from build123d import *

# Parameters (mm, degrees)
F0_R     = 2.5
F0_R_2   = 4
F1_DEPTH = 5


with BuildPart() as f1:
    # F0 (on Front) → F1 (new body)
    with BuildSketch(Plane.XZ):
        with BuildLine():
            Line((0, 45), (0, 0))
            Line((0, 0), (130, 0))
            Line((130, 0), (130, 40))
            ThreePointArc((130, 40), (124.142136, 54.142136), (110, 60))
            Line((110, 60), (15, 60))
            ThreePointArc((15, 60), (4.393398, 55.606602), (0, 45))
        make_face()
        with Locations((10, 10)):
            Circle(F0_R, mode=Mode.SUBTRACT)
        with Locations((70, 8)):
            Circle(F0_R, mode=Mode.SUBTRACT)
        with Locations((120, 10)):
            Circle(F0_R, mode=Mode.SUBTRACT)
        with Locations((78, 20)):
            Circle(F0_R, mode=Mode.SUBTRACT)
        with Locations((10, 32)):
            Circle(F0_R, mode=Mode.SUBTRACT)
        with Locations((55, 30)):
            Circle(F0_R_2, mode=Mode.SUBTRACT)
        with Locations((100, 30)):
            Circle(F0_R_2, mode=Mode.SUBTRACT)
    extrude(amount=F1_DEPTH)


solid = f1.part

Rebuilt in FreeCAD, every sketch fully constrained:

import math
import FreeCAD as App
import Part
import Sketcher
Q = App.Units.Quantity

doc = App.newDocument("Part")
body = doc.addObject("PartDesign::Body", "Body")

# Sketch on XZ plane
sketch1 = doc.addObject("Sketcher::SketchObject", "Sketch")
body.addObject(sketch1)
sketch1.AttachmentSupport = (doc.XZ_Plane, [""])
sketch1.MapMode = "FlatFace"
sketch1.addGeometry([
    Part.LineSegment(App.Vector(0, 45, 0), App.Vector(0, 0, 0)),  # 0
    Part.LineSegment(App.Vector(0, 0, 0), App.Vector(130, 0, 0)),  # 1
    Part.LineSegment(App.Vector(130, 0, 0), App.Vector(130, 40, 0)),  # 2
    Part.ArcOfCircle(Part.Circle(App.Vector(110, 40, 0), App.Vector(0, 0, 1), 20), math.radians(0), math.radians(90)),  # 3
    Part.LineSegment(App.Vector(110, 60, 0), App.Vector(15, 60, 0)),  # 4
    Part.ArcOfCircle(Part.Circle(App.Vector(15, 45, 0), App.Vector(0, 0, 1), 15), math.radians(90), math.radians(180)),  # 5
    Part.Circle(App.Vector(10, 10, 0), App.Vector(0, 0, 1), 2.5),  # 6
    Part.Circle(App.Vector(70, 8, 0), App.Vector(0, 0, 1), 2.5),  # 7
    Part.Circle(App.Vector(120, 10, 0), App.Vector(0, 0, 1), 2.5),  # 8
    Part.Circle(App.Vector(10, 32, 0), App.Vector(0, 0, 1), 2.5),  # 9
    Part.Circle(App.Vector(55, 30, 0), App.Vector(0, 0, 1), 4),  # 10
    Part.Circle(App.Vector(78, 20, 0), App.Vector(0, 0, 1), 2.5),  # 11
    Part.Circle(App.Vector(100, 30, 0), App.Vector(0, 0, 1), 4),  # 12
], False)
sketch1.addConstraint([
    Sketcher.Constraint("Coincident", 0, 2, 1, 1),
    Sketcher.Constraint("Coincident", 1, 2, 2, 1),
    Sketcher.Constraint("Tangent", 2, 2, 3, 1),
    Sketcher.Constraint("Tangent", 3, 2, 4, 1),
    Sketcher.Constraint("Tangent", 4, 2, 5, 1),
    Sketcher.Constraint("Tangent", 5, 2, 0, 1),
    Sketcher.Constraint("Vertical", 0),
    Sketcher.Constraint("Horizontal", 1),
    Sketcher.Constraint("Vertical", 2),
    Sketcher.Constraint("Horizontal", 4),
    Sketcher.Constraint("Coincident", 0, 2, -1, 1),
    Sketcher.Constraint("Equal", 6, 7),
    Sketcher.Constraint("Equal", 7, 8),
    Sketcher.Constraint("Equal", 8, 9),
    Sketcher.Constraint("Equal", 9, 11),
    Sketcher.Constraint("Equal", 10, 12),
    Sketcher.Constraint("Horizontal", 6, 3, 8, 3),
    Sketcher.Constraint("Horizontal", 10, 3, 12, 3),
    Sketcher.Constraint("Vertical", 6, 3, 9, 3),
    Sketcher.Constraint("Diameter", 6, Q("5 mm")),
    Sketcher.Constraint("Diameter", 10, Q("8 mm")),
    Sketcher.Constraint("Radius", 3, Q("19.999999 mm")),
    Sketcher.Constraint("Radius", 5, Q("14.999999 mm")),
    Sketcher.Constraint("DistanceX", 1, 1, 1, 2, Q("130 mm")),
    Sketcher.Constraint("DistanceY", 0, 2, 0, 1, Q("45 mm")),
    Sketcher.Constraint("DistanceX", -1, 1, 6, 3, Q("10 mm")),
    Sketcher.Constraint("DistanceY", -1, 1, 6, 3, Q("10 mm")),
    Sketcher.Constraint("DistanceX", -1, 1, 7, 3, Q("70 mm")),
    Sketcher.Constraint("DistanceY", -1, 1, 7, 3, Q("8 mm")),
    Sketcher.Constraint("DistanceX", -1, 1, 8, 3, Q("120 mm")),
    Sketcher.Constraint("DistanceY", -1, 1, 9, 3, Q("32 mm")),
    Sketcher.Constraint("DistanceX", -1, 1, 10, 3, Q("55 mm")),
    Sketcher.Constraint("DistanceY", -1, 1, 10, 3, Q("30 mm")),
    Sketcher.Constraint("DistanceX", -1, 1, 11, 3, Q("78 mm")),
    Sketcher.Constraint("DistanceY", -1, 1, 11, 3, Q("20 mm")),
    Sketcher.Constraint("DistanceX", -1, 1, 12, 3, Q("100 mm")),
])
pad1 = doc.addObject("PartDesign::Pad", "Pad")
body.addObject(pad1)
pad1.Profile = sketch1
pad1.Length = 5

doc.recompute()
